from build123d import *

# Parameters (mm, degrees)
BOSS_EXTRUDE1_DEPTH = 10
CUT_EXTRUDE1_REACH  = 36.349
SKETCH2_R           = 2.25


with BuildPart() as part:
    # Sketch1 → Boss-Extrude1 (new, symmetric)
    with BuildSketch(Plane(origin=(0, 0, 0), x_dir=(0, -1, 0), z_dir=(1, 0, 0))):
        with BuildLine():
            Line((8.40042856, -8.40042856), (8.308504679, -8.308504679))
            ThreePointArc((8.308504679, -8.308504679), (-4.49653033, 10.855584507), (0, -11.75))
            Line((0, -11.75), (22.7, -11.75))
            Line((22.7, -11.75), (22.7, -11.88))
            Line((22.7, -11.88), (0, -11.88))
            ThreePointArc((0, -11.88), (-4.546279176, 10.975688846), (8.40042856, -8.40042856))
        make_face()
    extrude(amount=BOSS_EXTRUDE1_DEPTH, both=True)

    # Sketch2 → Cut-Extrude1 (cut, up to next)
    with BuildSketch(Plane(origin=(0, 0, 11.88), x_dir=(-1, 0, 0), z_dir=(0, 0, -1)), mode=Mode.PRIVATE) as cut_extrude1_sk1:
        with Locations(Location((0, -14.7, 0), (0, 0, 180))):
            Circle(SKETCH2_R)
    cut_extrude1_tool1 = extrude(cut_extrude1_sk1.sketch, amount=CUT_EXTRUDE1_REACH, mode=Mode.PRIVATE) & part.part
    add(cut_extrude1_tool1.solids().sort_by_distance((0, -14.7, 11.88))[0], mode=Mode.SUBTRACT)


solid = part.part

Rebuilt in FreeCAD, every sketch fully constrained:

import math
import FreeCAD as App
import Part
import Sketcher

V = App.Vector
Q = App.Units.Quantity

doc = App.newDocument("Part")
body = doc.addObject("PartDesign::Body", "Body")

sketch1 = body.newObject("Sketcher::SketchObject", "Sketch")
sketch1.AttachmentSupport = (doc.getObject("YZ_Plane"), [""])
sketch1.MapMode = "FlatFace"
sketch1.addGeometry(Part.LineSegment(V(-8.31, 8.31, 0), V(-8.4, 8.4, 0)), False)
sketch1.addGeometry(Part.ArcOfCircle(Part.Circle(V(0, 0, 0), V(0, 0, 1), 11.88), math.radians(135), math.radians(450)), False)
sketch1.addGeometry(Part.LineSegment(V(0, 11.88, 0), V(-22.7, 11.88, 0)), False)
sketch1.addGeometry(Part.LineSegment(V(-22.7, 11.88, 0), V(-22.7, 11.75, 0)), False)
sketch1.addGeometry(Part.LineSegment(V(-22.7, 11.75, 0), V(0, 11.75, 0)), False)
sketch1.addGeometry(Part.ArcOfCircle(Part.Circle(V(0, 0, 0), V(0, 0, 1), 11.75), math.radians(135), math.radians(450)), False)
sketch1.addConstraint(Sketcher.Constraint("Coincident", 0, 2, 1, 1))
sketch1.addConstraint(Sketcher.Constraint("Tangent", 1, 2, 2, 1))
sketch1.addConstraint(Sketcher.Constraint("Coincident", 2, 2, 3, 1))
sketch1.addConstraint(Sketcher.Constraint("Coincident", 3, 2, 4, 1))
sketch1.addConstraint(Sketcher.Constraint("Tangent", 4, 2, 5, 2))
sketch1.addConstraint(Sketcher.Constraint("Coincident", 5, 1, 0, 1))
sketch1.addConstraint(Sketcher.Constraint("Horizontal", 2))
sketch1.addConstraint(Sketcher.Constraint("Vertical", 3))
sketch1.addConstraint(Sketcher.Constraint("Horizontal", 4))
sketch1.addConstraint(Sketcher.Constraint("Coincident", 1, 3, -1, 1))
sketch1.addConstraint(Sketcher.Constraint("Coincident", 5, 3, -1, 1))
sketch1.addConstraint(Sketcher.Constraint("Angle", 0, Q("135 deg")))
sketch1.addConstraint(Sketcher.Constraint("Radius", 1, Q("11.88 mm")))
sketch1.addConstraint(Sketcher.Constraint("Radius", 5, Q("11.75 mm")))
sketch1.addConstraint(Sketcher.Constraint("DistanceX", 2, 2, 2, 1, Q("22.7 mm")))
sketch1.addConstraint(Sketcher.Constraint("DistanceX", 0, 2, -1, 1, Q("8.400429 mm")))
pad1 = body.newObject("PartDesign::Pad", "Pad")
pad1.Profile = sketch1
pad1.Length = 20
pad1.Midplane = True

sketch2 = body.newObject("Sketcher::SketchObject", "Sketch001")
sketch2.AttachmentSupport = (doc.getObject("XY_Plane"), [""])
sketch2.MapMode = "FlatFace"
sketch2.AttachmentOffset = App.Placement(V(0, 0, 11.88), App.Rotation())
sketch2.addGeometry(Part.Circle(V(0, -14.7, 0), V(0, 0, 1), 2.2), False)
sketch2.addConstraint(Sketcher.Constraint("PointOnObject", 0, 3, -2))
sketch2.addConstraint(Sketcher.Constraint("Diameter", 0, Q("4.5 mm")))
sketch2.addConstraint(Sketcher.Constraint("DistanceY", 0, 3, -1, 1, Q("14.7 mm")))
pocket1 = body.newObject("PartDesign::Pocket", "Pocket")
pocket1.Profile = sketch2
pocket1.Type = "UpToFirst"

doc.recompute()
